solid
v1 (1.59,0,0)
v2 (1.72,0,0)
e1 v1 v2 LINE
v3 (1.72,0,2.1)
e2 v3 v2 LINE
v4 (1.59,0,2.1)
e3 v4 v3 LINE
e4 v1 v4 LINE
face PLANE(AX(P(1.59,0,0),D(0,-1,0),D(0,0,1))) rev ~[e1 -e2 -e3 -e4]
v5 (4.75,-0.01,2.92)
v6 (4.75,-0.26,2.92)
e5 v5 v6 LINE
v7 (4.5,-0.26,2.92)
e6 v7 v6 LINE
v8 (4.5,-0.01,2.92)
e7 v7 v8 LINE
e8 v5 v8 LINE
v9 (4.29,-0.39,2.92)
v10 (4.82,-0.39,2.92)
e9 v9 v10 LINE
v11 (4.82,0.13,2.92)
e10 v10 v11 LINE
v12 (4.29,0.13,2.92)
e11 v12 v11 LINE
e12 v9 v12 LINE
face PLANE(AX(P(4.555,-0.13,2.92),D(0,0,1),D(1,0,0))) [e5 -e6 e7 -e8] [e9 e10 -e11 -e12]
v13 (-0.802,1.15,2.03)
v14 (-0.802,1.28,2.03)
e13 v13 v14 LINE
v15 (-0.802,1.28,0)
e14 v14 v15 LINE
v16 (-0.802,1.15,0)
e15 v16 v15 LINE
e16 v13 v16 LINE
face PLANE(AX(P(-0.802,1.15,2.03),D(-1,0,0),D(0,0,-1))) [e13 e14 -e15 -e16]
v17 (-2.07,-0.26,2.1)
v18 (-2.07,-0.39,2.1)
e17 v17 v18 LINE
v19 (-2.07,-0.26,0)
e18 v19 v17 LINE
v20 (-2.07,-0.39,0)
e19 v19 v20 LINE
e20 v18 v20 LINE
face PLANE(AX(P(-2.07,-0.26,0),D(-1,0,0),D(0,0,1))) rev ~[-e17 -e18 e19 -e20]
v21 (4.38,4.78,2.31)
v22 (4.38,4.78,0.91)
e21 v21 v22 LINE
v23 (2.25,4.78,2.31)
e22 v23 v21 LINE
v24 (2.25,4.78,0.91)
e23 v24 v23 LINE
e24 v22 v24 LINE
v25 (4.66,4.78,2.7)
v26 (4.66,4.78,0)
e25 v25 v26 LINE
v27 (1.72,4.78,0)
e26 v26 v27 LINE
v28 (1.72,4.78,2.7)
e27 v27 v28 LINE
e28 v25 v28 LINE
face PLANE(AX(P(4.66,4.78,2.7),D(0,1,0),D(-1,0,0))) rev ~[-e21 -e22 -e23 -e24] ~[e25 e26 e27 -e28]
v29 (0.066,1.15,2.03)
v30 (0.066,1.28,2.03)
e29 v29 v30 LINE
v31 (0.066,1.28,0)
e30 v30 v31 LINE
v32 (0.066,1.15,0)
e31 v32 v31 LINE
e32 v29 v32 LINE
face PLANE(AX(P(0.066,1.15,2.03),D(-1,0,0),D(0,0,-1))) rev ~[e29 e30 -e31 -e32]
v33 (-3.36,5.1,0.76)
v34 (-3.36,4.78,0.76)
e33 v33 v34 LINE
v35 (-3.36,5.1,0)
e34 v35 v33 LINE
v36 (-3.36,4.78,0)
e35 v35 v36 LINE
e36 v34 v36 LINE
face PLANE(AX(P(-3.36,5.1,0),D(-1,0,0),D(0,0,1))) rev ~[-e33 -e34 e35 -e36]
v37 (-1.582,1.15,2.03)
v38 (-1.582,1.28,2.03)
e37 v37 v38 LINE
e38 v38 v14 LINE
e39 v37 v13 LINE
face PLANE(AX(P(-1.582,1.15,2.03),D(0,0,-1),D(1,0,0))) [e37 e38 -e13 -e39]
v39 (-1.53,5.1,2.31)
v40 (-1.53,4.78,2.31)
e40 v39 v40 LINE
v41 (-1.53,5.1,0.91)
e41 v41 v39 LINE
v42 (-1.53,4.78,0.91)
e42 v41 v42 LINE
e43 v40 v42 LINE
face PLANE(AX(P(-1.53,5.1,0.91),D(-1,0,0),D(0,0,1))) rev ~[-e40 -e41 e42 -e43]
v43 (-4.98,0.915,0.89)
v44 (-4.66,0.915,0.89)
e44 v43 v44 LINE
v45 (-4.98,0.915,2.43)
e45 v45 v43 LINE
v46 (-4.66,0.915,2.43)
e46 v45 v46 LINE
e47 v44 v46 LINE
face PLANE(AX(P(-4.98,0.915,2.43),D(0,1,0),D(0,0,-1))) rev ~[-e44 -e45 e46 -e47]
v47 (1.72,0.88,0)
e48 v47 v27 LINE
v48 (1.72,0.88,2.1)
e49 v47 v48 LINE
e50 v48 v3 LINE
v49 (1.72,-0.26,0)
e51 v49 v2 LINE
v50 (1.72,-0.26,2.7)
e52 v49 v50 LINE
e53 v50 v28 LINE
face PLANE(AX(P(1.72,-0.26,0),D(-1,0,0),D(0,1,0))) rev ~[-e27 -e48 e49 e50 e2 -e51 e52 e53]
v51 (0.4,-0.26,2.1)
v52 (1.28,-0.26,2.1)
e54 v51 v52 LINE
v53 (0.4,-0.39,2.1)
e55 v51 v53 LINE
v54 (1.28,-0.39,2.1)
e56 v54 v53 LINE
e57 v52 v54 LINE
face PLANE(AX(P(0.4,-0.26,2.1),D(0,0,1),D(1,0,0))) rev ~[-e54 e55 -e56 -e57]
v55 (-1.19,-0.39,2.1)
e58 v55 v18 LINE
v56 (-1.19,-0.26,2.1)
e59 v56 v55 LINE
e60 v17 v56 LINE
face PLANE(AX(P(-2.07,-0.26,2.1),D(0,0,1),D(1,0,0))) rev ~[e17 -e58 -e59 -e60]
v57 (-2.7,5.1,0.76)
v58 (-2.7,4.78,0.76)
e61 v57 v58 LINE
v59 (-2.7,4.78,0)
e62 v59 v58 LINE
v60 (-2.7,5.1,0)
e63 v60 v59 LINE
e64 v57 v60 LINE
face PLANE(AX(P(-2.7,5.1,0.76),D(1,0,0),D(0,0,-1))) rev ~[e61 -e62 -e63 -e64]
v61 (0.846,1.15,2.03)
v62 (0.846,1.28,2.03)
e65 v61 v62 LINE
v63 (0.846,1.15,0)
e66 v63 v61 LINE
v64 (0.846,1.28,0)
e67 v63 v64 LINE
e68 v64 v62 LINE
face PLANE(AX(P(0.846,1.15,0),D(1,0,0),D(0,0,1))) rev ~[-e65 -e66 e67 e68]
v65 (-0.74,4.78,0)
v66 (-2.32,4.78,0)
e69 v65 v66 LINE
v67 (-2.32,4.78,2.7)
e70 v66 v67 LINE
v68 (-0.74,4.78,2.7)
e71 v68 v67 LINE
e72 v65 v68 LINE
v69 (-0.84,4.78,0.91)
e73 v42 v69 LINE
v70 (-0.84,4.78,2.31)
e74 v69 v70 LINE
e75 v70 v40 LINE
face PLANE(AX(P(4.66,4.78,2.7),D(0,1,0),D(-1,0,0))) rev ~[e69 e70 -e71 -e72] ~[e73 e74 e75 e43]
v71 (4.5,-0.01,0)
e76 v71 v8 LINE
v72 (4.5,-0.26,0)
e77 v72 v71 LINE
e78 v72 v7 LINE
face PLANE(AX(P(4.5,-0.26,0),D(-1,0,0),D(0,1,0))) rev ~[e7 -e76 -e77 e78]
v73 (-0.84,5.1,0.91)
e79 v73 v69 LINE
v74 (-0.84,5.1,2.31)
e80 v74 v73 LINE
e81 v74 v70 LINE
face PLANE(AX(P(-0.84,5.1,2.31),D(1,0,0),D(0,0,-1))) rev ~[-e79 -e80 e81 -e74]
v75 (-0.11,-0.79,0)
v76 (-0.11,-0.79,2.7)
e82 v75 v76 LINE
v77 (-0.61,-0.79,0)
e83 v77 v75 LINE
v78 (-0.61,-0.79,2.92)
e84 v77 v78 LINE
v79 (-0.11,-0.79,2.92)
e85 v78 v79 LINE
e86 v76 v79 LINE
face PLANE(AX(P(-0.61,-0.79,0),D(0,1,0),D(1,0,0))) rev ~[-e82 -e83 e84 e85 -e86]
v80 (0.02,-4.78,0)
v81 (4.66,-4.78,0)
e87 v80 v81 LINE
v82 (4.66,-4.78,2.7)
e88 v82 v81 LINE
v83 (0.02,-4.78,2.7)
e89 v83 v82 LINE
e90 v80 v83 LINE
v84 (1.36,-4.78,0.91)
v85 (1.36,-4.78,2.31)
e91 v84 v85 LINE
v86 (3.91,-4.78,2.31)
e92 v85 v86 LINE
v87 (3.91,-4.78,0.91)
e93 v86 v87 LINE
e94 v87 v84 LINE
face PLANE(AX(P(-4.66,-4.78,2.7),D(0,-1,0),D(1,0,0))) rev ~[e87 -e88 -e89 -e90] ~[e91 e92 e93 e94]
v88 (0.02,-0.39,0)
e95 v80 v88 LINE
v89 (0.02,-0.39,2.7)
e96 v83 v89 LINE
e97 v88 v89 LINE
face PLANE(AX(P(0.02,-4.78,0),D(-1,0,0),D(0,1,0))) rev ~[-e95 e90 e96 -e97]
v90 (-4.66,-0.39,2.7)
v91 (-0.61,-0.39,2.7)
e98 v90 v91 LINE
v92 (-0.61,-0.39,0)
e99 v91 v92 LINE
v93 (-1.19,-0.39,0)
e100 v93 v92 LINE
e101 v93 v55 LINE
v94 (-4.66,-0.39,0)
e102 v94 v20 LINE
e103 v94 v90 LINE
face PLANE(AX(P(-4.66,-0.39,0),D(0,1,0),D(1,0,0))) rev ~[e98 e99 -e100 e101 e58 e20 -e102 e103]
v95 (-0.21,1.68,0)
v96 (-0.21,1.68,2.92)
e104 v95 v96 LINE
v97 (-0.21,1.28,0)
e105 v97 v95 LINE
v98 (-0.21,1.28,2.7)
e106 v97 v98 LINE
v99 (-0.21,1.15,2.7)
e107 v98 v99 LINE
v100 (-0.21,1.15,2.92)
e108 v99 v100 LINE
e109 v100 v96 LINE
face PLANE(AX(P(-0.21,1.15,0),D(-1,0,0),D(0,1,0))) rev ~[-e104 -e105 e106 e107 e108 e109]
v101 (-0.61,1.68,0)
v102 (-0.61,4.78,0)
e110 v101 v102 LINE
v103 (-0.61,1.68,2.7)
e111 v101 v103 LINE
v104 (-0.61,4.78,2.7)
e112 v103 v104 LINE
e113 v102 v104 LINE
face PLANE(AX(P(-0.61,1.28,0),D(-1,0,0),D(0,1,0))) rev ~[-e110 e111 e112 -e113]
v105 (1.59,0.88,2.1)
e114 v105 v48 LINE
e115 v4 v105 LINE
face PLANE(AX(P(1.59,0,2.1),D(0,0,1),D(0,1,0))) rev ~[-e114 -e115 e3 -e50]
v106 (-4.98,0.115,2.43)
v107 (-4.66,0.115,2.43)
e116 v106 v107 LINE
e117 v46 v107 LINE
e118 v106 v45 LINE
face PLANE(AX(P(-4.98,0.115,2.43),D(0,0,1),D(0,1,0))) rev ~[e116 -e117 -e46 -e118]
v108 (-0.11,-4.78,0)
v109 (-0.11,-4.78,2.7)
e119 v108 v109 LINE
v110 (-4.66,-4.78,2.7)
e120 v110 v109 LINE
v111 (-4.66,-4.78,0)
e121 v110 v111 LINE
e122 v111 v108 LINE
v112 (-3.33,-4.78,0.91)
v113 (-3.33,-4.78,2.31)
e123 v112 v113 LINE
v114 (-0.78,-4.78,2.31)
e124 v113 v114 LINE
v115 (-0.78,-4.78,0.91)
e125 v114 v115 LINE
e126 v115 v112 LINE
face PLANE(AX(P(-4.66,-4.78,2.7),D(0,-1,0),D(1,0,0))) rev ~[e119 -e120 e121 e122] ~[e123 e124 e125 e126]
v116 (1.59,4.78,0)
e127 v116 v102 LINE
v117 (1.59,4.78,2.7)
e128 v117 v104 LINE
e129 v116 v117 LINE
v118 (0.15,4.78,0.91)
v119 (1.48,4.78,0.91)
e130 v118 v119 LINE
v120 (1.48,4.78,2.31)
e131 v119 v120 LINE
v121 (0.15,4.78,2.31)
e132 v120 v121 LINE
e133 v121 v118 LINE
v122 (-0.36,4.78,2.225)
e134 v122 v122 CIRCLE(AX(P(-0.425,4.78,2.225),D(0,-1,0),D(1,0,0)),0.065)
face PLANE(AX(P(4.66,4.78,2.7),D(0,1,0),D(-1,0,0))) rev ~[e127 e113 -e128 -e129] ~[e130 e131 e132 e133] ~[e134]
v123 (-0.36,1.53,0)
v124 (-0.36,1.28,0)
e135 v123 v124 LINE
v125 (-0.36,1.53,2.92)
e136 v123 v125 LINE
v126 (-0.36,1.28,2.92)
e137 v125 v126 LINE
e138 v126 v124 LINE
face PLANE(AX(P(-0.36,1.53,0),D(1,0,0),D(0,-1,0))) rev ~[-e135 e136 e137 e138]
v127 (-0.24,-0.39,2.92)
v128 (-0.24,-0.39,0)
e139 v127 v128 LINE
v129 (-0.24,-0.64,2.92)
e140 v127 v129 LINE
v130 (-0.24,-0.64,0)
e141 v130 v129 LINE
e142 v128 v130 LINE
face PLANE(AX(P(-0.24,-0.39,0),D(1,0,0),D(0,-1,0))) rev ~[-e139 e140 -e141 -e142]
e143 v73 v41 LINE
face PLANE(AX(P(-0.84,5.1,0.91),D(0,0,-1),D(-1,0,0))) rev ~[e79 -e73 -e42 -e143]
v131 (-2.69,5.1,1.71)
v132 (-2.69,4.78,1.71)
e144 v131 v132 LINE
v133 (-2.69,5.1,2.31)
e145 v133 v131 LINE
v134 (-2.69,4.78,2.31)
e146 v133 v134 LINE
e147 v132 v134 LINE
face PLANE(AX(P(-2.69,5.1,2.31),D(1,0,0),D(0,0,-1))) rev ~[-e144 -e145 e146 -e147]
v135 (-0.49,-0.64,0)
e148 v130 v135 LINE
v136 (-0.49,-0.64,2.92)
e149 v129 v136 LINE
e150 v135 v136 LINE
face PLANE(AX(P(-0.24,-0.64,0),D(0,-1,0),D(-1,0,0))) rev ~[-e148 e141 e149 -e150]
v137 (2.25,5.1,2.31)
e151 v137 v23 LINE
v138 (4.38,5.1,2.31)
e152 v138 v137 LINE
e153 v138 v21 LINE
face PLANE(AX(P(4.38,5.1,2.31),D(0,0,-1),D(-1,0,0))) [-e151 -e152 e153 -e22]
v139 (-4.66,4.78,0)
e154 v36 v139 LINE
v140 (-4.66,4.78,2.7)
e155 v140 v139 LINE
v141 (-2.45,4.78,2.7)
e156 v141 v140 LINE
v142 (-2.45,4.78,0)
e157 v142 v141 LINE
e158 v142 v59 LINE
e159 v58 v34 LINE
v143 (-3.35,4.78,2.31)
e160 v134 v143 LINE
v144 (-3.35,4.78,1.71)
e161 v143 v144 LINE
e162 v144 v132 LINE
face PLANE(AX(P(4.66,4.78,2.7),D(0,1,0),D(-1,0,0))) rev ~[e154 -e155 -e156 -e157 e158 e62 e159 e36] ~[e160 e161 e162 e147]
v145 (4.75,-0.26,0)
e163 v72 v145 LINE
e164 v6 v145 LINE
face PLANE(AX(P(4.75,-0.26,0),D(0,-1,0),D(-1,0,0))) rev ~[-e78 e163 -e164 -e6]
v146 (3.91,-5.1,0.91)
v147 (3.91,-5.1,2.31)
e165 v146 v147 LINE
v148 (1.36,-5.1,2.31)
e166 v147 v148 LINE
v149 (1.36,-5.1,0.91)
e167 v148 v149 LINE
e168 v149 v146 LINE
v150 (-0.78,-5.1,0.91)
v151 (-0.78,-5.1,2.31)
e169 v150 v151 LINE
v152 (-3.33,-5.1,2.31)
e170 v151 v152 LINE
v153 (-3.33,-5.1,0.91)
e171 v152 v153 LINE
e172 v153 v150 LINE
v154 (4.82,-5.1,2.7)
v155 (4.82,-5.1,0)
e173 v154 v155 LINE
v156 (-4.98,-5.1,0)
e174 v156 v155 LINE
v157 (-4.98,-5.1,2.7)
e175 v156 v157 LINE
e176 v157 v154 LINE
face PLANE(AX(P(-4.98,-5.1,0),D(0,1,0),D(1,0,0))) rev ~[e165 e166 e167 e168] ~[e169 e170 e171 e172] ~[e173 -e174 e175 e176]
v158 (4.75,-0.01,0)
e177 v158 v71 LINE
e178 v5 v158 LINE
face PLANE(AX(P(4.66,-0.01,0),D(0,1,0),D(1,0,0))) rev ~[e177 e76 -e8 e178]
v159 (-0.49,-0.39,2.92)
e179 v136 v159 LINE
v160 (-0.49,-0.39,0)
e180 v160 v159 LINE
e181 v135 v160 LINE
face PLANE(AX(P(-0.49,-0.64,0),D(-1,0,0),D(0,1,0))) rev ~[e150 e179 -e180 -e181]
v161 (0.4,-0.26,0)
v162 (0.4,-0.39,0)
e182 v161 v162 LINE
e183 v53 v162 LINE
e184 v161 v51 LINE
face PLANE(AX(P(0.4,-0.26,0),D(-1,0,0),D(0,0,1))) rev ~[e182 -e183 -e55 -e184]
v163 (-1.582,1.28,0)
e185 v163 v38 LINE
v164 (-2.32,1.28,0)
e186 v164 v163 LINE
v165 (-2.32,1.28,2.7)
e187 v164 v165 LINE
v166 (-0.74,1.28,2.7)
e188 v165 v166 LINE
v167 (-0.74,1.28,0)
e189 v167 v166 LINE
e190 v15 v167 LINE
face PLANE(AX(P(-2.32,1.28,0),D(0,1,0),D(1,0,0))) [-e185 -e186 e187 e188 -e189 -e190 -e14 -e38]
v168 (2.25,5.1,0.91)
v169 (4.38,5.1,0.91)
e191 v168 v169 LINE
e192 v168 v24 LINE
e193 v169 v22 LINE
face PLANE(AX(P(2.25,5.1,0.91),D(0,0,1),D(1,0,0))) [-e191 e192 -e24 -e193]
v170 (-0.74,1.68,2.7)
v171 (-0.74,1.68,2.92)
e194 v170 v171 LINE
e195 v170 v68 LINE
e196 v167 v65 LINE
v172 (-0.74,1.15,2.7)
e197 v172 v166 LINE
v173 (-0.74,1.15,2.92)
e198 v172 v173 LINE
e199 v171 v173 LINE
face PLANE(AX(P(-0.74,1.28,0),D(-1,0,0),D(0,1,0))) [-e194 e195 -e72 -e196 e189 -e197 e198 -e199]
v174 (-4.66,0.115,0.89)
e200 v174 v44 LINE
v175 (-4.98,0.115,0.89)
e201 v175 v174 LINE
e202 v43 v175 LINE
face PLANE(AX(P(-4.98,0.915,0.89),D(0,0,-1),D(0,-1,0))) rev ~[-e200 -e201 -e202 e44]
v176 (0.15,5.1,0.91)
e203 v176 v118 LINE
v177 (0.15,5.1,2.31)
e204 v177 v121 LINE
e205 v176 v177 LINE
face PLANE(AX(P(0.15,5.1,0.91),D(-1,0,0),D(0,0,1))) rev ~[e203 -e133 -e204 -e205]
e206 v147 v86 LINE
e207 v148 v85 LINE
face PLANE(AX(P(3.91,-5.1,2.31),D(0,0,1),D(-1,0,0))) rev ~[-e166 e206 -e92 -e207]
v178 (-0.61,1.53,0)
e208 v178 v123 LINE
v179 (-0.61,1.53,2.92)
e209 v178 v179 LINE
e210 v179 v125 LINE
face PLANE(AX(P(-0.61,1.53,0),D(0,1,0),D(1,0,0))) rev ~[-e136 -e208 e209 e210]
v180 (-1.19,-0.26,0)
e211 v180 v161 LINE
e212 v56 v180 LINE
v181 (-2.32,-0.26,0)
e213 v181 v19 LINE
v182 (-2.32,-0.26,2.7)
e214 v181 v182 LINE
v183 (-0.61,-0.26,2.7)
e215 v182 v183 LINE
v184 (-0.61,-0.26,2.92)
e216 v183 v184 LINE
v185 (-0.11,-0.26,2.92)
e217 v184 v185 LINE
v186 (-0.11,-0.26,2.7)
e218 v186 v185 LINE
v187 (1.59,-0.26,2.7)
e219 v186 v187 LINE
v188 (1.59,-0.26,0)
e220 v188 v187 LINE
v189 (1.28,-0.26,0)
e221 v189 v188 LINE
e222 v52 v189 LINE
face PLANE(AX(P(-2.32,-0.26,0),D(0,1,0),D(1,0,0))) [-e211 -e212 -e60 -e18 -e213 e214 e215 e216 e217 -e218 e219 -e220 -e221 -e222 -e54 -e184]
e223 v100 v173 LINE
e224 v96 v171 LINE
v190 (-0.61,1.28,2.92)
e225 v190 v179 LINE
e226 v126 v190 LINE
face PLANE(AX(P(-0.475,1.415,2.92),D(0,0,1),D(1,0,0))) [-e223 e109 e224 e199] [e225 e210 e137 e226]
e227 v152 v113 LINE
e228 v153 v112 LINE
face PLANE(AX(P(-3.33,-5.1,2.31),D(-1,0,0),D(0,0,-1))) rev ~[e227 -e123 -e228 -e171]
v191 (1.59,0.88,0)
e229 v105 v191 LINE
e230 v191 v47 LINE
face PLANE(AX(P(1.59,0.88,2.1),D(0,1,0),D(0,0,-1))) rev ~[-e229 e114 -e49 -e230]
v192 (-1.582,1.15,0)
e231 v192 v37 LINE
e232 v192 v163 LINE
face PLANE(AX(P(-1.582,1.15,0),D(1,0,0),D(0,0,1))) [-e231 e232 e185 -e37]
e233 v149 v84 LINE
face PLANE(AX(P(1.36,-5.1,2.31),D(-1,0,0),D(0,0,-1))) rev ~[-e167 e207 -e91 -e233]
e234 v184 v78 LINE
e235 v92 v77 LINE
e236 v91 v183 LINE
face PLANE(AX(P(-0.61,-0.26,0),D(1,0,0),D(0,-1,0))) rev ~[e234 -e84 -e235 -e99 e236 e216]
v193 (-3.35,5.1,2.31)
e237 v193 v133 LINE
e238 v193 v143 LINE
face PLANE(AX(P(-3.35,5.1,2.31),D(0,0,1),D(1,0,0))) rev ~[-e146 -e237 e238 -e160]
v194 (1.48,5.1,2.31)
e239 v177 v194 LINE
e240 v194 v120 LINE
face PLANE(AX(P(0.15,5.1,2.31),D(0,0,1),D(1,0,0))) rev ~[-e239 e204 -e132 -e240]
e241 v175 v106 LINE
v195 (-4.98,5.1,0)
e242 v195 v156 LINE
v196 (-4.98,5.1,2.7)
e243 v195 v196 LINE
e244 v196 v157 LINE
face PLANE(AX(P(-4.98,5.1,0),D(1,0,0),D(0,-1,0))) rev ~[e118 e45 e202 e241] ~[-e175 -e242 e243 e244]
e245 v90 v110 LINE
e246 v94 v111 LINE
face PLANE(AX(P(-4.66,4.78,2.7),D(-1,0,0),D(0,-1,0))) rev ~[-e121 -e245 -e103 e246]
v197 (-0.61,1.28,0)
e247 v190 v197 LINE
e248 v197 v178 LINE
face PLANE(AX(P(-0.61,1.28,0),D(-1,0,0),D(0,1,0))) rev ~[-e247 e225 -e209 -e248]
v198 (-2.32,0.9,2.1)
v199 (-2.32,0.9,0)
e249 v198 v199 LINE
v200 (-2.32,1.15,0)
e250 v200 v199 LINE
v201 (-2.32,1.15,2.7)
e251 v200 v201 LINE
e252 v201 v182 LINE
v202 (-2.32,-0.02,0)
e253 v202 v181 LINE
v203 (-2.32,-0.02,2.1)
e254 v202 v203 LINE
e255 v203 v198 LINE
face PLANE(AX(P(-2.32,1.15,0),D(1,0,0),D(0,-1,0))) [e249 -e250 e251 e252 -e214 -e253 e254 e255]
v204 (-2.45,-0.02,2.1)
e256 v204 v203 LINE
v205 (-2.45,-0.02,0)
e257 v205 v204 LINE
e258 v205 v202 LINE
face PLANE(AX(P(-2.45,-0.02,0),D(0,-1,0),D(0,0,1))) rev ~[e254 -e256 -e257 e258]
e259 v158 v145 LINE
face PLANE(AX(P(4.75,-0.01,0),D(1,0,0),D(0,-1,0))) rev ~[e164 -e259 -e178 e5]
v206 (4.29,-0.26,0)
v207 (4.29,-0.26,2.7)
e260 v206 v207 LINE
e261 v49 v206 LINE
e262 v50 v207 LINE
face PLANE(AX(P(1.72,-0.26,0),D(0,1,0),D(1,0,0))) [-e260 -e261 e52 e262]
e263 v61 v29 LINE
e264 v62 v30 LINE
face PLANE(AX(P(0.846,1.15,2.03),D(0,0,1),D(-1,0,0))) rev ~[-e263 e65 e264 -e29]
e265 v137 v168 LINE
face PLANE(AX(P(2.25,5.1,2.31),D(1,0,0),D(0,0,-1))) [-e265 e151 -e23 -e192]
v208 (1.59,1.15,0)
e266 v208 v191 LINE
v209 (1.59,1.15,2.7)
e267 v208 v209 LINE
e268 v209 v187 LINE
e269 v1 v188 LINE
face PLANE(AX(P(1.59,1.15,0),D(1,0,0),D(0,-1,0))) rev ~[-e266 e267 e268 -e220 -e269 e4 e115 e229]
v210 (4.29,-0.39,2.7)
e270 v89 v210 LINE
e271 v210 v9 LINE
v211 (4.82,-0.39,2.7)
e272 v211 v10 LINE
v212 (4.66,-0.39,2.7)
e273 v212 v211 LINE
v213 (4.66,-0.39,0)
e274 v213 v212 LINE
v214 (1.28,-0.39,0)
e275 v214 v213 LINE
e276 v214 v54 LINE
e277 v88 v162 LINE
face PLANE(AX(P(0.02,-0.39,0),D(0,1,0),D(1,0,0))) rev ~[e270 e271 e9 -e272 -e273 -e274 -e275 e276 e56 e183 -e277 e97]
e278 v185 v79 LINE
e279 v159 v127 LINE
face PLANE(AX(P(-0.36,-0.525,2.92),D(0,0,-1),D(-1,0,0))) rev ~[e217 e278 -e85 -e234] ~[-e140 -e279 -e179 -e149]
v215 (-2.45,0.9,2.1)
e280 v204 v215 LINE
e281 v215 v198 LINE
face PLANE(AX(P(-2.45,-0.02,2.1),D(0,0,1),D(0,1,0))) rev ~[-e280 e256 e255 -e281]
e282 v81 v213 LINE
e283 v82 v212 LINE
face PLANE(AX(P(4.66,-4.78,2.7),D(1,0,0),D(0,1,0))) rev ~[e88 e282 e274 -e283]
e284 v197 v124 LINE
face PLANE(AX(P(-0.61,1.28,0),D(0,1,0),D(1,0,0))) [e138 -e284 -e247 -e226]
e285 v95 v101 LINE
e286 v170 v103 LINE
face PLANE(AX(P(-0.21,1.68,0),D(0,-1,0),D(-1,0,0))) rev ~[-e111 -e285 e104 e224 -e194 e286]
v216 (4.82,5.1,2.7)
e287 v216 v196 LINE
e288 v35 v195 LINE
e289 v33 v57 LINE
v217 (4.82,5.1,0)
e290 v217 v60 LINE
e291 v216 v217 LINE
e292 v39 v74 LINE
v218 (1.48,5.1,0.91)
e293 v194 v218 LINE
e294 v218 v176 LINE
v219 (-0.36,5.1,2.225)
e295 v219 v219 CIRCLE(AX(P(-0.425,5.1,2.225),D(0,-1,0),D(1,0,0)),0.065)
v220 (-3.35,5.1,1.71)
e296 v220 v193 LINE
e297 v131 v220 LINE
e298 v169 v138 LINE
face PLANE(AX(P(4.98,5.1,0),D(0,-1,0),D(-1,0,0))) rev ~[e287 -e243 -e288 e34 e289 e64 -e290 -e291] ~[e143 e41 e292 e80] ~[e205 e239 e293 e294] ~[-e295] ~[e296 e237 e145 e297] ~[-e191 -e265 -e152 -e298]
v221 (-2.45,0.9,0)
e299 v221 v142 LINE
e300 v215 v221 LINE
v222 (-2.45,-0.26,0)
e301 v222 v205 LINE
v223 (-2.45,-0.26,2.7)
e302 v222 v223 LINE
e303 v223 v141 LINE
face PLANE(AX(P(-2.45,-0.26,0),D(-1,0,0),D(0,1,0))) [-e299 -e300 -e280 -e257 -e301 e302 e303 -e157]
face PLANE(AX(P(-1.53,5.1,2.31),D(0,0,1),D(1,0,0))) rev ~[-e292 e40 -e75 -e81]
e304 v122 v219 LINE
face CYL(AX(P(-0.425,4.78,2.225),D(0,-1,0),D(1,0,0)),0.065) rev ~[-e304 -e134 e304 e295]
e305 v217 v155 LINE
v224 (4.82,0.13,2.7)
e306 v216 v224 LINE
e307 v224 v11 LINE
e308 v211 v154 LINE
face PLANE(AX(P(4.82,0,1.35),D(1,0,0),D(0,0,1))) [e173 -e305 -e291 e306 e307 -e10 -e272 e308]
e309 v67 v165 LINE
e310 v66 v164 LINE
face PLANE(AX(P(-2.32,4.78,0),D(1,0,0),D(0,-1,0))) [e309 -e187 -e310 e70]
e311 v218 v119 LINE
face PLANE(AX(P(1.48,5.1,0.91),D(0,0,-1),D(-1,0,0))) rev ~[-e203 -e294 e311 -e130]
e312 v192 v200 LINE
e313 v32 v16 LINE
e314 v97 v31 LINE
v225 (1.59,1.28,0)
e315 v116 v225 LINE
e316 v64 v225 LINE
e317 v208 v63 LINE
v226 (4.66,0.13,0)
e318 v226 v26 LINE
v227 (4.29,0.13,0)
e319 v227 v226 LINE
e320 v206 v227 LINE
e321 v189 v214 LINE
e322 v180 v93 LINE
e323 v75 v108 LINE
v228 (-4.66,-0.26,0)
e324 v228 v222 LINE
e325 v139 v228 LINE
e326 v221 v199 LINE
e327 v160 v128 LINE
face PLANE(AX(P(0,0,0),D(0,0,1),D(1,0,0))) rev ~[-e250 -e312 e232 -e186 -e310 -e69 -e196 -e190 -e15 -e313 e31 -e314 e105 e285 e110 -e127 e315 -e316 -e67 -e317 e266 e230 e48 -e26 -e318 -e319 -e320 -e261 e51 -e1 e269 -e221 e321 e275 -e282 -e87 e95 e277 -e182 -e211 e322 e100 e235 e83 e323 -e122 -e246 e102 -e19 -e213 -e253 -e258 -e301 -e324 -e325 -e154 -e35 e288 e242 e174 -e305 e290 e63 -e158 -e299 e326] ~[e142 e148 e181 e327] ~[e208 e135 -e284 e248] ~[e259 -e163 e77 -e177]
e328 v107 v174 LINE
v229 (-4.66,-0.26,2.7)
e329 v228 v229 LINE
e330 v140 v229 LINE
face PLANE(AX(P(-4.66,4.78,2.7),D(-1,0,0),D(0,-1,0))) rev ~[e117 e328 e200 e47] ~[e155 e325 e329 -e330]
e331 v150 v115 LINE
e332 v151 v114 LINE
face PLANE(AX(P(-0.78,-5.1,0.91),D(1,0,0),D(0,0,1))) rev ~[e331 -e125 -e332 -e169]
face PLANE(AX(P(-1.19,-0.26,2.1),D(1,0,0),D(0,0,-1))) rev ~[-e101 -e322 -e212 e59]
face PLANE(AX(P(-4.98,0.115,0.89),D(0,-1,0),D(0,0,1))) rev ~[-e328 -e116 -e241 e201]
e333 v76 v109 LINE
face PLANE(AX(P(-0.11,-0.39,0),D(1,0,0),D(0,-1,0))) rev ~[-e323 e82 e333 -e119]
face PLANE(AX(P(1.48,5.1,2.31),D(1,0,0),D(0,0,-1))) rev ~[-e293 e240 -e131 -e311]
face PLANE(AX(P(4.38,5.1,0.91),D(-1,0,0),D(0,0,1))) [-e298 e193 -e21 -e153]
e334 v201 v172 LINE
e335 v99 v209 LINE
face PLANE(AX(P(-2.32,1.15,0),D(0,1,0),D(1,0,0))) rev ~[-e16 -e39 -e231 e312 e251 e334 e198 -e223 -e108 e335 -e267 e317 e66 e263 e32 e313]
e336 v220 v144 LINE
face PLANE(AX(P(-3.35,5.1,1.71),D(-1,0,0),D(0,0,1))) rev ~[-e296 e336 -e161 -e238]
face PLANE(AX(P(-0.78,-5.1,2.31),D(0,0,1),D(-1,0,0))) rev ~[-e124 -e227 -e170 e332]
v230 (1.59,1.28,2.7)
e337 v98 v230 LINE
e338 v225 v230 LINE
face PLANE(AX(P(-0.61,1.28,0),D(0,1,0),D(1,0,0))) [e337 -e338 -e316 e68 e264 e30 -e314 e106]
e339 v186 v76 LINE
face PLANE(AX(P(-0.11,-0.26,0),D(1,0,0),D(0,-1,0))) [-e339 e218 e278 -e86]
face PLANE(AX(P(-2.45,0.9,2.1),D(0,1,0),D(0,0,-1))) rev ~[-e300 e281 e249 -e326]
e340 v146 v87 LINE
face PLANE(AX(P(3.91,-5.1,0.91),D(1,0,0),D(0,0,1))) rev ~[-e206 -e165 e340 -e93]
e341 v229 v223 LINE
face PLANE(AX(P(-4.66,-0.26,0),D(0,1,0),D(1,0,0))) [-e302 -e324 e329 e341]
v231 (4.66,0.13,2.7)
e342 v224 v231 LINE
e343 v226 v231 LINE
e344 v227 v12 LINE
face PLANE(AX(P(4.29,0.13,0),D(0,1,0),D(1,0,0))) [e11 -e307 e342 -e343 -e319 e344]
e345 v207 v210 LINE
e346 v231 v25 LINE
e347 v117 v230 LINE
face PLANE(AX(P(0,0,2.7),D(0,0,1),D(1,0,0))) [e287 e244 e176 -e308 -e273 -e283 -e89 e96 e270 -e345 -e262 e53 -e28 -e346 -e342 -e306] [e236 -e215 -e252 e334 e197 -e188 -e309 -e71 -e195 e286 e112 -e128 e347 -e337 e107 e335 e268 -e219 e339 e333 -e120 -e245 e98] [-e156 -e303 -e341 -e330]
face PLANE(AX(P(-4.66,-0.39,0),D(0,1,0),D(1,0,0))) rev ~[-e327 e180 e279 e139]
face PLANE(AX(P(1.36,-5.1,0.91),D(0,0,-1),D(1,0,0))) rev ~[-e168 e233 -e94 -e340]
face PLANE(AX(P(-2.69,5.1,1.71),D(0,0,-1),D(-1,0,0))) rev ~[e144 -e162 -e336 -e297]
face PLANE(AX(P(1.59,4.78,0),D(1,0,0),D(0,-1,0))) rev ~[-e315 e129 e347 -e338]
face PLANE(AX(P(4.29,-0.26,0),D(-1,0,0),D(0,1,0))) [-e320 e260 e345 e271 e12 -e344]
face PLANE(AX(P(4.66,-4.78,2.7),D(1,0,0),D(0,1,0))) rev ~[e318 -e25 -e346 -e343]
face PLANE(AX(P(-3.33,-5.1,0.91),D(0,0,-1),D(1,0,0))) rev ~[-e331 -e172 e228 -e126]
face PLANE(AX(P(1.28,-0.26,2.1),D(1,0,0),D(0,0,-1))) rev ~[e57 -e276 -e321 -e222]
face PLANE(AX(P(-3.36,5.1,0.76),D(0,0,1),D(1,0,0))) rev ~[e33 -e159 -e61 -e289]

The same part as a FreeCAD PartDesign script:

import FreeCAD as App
import Part
import Sketcher
from FreeCAD import Vector


def add_polygon(sketch, points):
    """Adds a closed chain of lines whose ends are joined by coincident constraints."""
    first, n = sketch.GeometryCount, len(points)
    for a, b in zip(points, points[1:] + points[:1]):
        sketch.addGeometry(Part.LineSegment(App.Vector(*a, 0), App.Vector(*b, 0)), False)
    for i in range(n):
        sketch.addConstraint(Sketcher.Constraint("Coincident", first + i, 2, first + (i + 1) % n, 1))

doc = App.newDocument("Part")
body = doc.addObject("PartDesign::Body", "Body")

# Sketch on XY plane
sketch1 = body.newObject("Sketcher::SketchObject", "Sketch")
sketch1.AttachmentSupport = (doc.getObject("XY_Plane"), [""])
sketch1.MapMode = "FlatFace"
add_polygon(sketch1, [(-5, 5), (-5, -5), (5, -5), (5, 5)])  # lines 0-3
sketch1.addConstraint(Sketcher.Constraint("Vertical", 0))
sketch1.addConstraint(Sketcher.Constraint("Horizontal", 1))
sketch1.addConstraint(Sketcher.Constraint("Vertical", 2))
sketch1.addConstraint(Sketcher.Constraint("Horizontal", 3))
sketch1.addConstraint(Sketcher.Constraint("Symmetric", 0, 2, 2, 2, -1, 1))
sketch1.addConstraint(Sketcher.Constraint("DistanceX", 0, 2, -1, 1, 4.98))
sketch1.addConstraint(Sketcher.Constraint("DistanceY", 0, 2, 0, 1, 10.2))
pad1 = body.newObject("PartDesign::Pad", "Pad")
pad1.Profile = sketch1
pad1.Length = 2.7

# Sketch on XY plane
sketch2 = body.newObject("Sketcher::SketchObject", "Sketch001")
sketch2.AttachmentSupport = (doc.getObject("XY_Plane"), [""])
sketch2.MapMode = "FlatFace"
sketch2.AttachmentOffset = App.Placement(Vector(0, 0, 2.7), App.Rotation())
add_polygon(sketch2, [(5, 5), (-5, 5), (-5, -5), (5, -5)])  # lines 0-3
sketch2.addConstraint(Sketcher.Constraint("Horizontal", 0))
sketch2.addConstraint(Sketcher.Constraint("Vertical", 1))
sketch2.addConstraint(Sketcher.Constraint("Horizontal", 2))
sketch2.addConstraint(Sketcher.Constraint("Vertical", 3))
sketch2.addConstraint(Sketcher.Constraint("Symmetric", 0, 2, 2, 2, -1, 1))
sketch2.addConstraint(Sketcher.Constraint("DistanceX", 0, 2, 0, 1, 9.32))
sketch2.addConstraint(Sketcher.Constraint("DistanceY", 1, 2, 1, 1, 9.56))
pocket1 = body.newObject("PartDesign::Pocket", "Pocket")
pocket1.Profile = sketch2
pocket1.Type = "ThroughAll"

# Sketch on YZ plane
sketch3 = body.newObject("Sketcher::SketchObject", "Sketch002")
sketch3.AttachmentSupport = (doc.getObject("YZ_Plane"), [""])
sketch3.MapMode = "FlatFace"
sketch3.AttachmentOffset = App.Placement(Vector(0, 0, 4.98), App.Rotation())
add_polygon(sketch3, [(5.1, 2.7), (-5.1, 2.7), (-5.1, 0), (5.1, 0)])  # lines 0-3
sketch3.addConstraint(Sketcher.Constraint("Horizontal", 0))
sketch3.addConstraint(Sketcher.Constraint("Vertical", 1))
sketch3.addConstraint(Sketcher.Constraint("Horizontal", 2))
sketch3.addConstraint(Sketcher.Constraint("Vertical", 3))
sketch3.addConstraint(Sketcher.Constraint("Symmetric", 1, 2, 2, 2, -1, 1))
sketch3.addConstraint(Sketcher.Constraint("DistanceX", 0, 2, 0, 1, 10.2))
sketch3.addConstraint(Sketcher.Constraint("DistanceY", 1, 2, 1, 1, 2.7))
pocket2 = body.newObject("PartDesign::Pocket", "Pocket001")
pocket2.Profile = sketch3
pocket2.Length = 0.16

# Sketch on XY plane
sketch4 = body.newObject("Sketcher::SketchObject", "Sketch003")
sketch4.AttachmentSupport = (doc.getObject("XY_Plane"), [""])
sketch4.MapMode = "FlatFace"
add_polygon(sketch4, [(-2.45, -0.26), (-4.66, -0.26), (-4.66, -0.39), (-0.11, -0.39), (-0.11, -4.78), (0.02, -4.78), (0.02, -0.39), (4.66, -0.39), (4.66, -0.26), (1.72, -0.26), (1.72, 4.78), (1.59, 4.78), (1.59, 1.28), (-0.61, 1.28), (-0.61, 4.78), (-0.74, 4.78), (-0.74, 1.28), (-2.32, 1.28), (-2.32, 4.78), (-2.45, 4.78)])  # lines 0-19
add_polygon(sketch4, [(1.59, -0.26), (-2.32, -0.26), (-2.32, 1.15), (1.59, 1.15)])  # lines 20-23
sketch4.addConstraint(Sketcher.Constraint("Horizontal", 0))
sketch4.addConstraint(Sketcher.Constraint("Vertical", 1))
sketch4.addConstraint(Sketcher.Constraint("Horizontal", 2))
sketch4.addConstraint(Sketcher.Constraint("Vertical", 3))
sketch4.addConstraint(Sketcher.Constraint("Horizontal", 4))
sketch4.addConstraint(Sketcher.Constraint("Vertical", 5))
sketch4.addConstraint(Sketcher.Constraint("Horizontal", 6))
sketch4.addConstraint(Sketcher.Constraint("Vertical", 7))
sketch4.addConstraint(Sketcher.Constraint("Horizontal", 8))
sketch4.addConstraint(Sketcher.Constraint("Vertical", 9))
sketch4.addConstraint(Sketcher.Constraint("Horizontal", 10))
sketch4.addConstraint(Sketcher.Constraint("Vertical", 11))
sketch4.addConstraint(Sketcher.Constraint("Horizontal", 12))
sketch4.addConstraint(Sketcher.Constraint("Vertical", 13))
sketch4.addConstraint(Sketcher.Constraint("Horizontal", 14))
sketch4.addConstraint(Sketcher.Constraint("Vertical", 15))
sketch4.addConstraint(Sketcher.Constraint("Horizontal", 16))
sketch4.addConstraint(Sketcher.Constraint("Vertical", 17))
sketch4.addConstraint(Sketcher.Constraint("Horizontal", 18))
sketch4.addConstraint(Sketcher.Constraint("Vertical", 19))
sketch4.addConstraint(Sketcher.Constraint("Horizontal", 20))
sketch4.addConstraint(Sketcher.Constraint("Vertical", 21))
sketch4.addConstraint(Sketcher.Constraint("Horizontal", 22))
sketch4.addConstraint(Sketcher.Constraint("Vertical", 23))
sketch4.addConstraint(Sketcher.Constraint("Symmetric", 1, 2, 6, 2, -2))
sketch4.addConstraint(Sketcher.Constraint("Horizontal", 0, 2, 7, 2))
sketch4.addConstraint(Sketcher.Constraint("Horizontal", 10, 2, 13, 2))
sketch4.addConstraint(Sketcher.Constraint("Horizontal", 12, 2, 15, 2))
sketch4.addConstraint(Sketcher.Constraint("Horizontal", 14, 2, 17, 2))
sketch4.addConstraint(Sketcher.Constraint("Horizontal", 19, 2, 20, 2))
sketch4.addConstraint(Sketcher.Constraint("Vertical", 17, 2, 20, 2))
sketch4.addConstraint(Sketcher.Constraint("Vertical", 11, 2, 22, 2))
sketch4.addConstraint(Sketcher.Constraint("Equal", 4, 10))
sketch4.addConstraint(Sketcher.Constraint("Equal", 10, 14))
sketch4.addConstraint(Sketcher.Constraint("Equal", 14, 18))
sketch4.addConstraint(Sketcher.Constraint("Equal", 18, 1))
sketch4.addConstraint(Sketcher.Constraint("DistanceX", 0, 2, -1, 1, 4.66))
sketch4.addConstraint(Sketcher.Constraint("DistanceX", 12, 2, 12, 1, 2.2))
sketch4.addConstraint(Sketcher.Constraint("DistanceY", 11, 2, 11, 1, 3.5))
sketch4.addConstraint(Sketcher.Constraint("DistanceX", 0, 2, 0, 1, 2.21))
sketch4.addConstraint(Sketcher.Constraint("DistanceX", 2, 1, 2, 2, 4.55))
sketch4.addConstraint(Sketcher.Constraint("DistanceX", 4, 1, 4, 2, 0.13))
sketch4.addConstraint(Sketcher.Constraint("DistanceX", 8, 2, 8, 1, 2.94))
sketch4.addConstraint(Sketcher.Constraint("DistanceY", 3, 2, 3, 1, 4.39))
sketch4.addConstraint(Sketcher.Constraint("DistanceY", 9, 1, 9, 2, 5.04))
sketch4.addConstraint(Sketcher.Constraint("DistanceY", 21, 1, 21, 2, 1.41))
sketch4.addConstraint(Sketcher.Constraint("DistanceY", 0, 2, -1, 1, 0.26))
pad2 = body.newObject("PartDesign::Pad", "Pad001")
pad2.Profile = sketch4
pad2.Length = 2.7

# Sketch on XY plane
sketch5 = body.newObject("Sketcher::SketchObject", "Sketch004")
sketch5.AttachmentSupport = (doc.getObject("XY_Plane"), [""])
sketch5.MapMode = "FlatFace"
add_polygon(sketch5, [(-0.11, -0.26), (-0.61, -0.26), (-0.61, -0.79), (-0.11, -0.79)])  # lines 0-3
add_polygon(sketch5, [(-0.49, -0.64), (-0.49, -0.39), (-0.24, -0.39), (-0.24, -0.64)])  # lines 4-7
add_polygon(sketch5, [(-0.74, 1.15), (-0.21, 1.15), (-0.21, 1.68), (-0.74, 1.68)])  # lines 8-11
add_polygon(sketch5, [(-0.36, 1.53), (-0.36, 1.28), (-0.61, 1.28), (-0.61, 1.53)])  # lines 12-15
add_polygon(sketch5, [(4.29, -0.26), (4.5, -0.26), (4.5, -0.01), (4.66, -0.01), (4.66, 0.13), (4.29, 0.13)])  # lines 16-21
sketch5.addConstraint(Sketcher.Constraint("Horizontal", 0))
sketch5.addConstraint(Sketcher.Constraint("Vertical", 1))
sketch5.addConstraint(Sketcher.Constraint("Horizontal", 2))
sketch5.addConstraint(Sketcher.Constraint("Vertical", 3))
sketch5.addConstraint(Sketcher.Constraint("Vertical", 4))
sketch5.addConstraint(Sketcher.Constraint("Horizontal", 5))
sketch5.addConstraint(Sketcher.Constraint("Vertical", 6))
sketch5.addConstraint(Sketcher.Constraint("Horizontal", 7))
sketch5.addConstraint(Sketcher.Constraint("Horizontal", 8))
sketch5.addConstraint(Sketcher.Constraint("Vertical", 9))
sketch5.addConstraint(Sketcher.Constraint("Horizontal", 10))
sketch5.addConstraint(Sketcher.Constraint("Vertical", 11))
sketch5.addConstraint(Sketcher.Constraint("Vertical", 12))
sketch5.addConstraint(Sketcher.Constraint("Horizontal", 13))
sketch5.addConstraint(Sketcher.Constraint("Vertical", 14))
sketch5.addConstraint(Sketcher.Constraint("Horizontal", 15))
sketch5.addConstraint(Sketcher.Constraint("Horizontal", 16))
sketch5.addConstraint(Sketcher.Constraint("Vertical", 17))
sketch5.addConstraint(Sketcher.Constraint("Horizontal", 18))
sketch5.addConstraint(Sketcher.Constraint("Vertical", 19))
sketch5.addConstraint(Sketcher.Constraint("Horizontal", 20))
sketch5.addConstraint(Sketcher.Constraint("Vertical", 21))
sketch5.addConstraint(Sketcher.Constraint("Horizontal", 3, 2, 16, 2))
sketch5.addConstraint(Sketcher.Constraint("Vertical", 1, 2, 13, 2))
sketch5.addConstraint(Sketcher.Constraint("Equal", 7, 13))
sketch5.addConstraint(Sketcher.Constraint("Equal", 10, 1))
sketch5.addConstraint(Sketcher.Constraint("Equal", 15, 4))
sketch5.addConstraint(Sketcher.Constraint("Equal", 3, 9))
sketch5.addConstraint(Sketcher.Constraint("Equal", 6, 12))
sketch5.addConstraint(Sketcher.Constraint("Equal", 14, 17))
sketch5.addConstraint(Sketcher.Constraint("DistanceX", -1, 1, 16, 2, 4.5))
sketch5.addConstraint(Sketcher.Constraint("DistanceX", 0, 2, -1, 1, 0.61))
sketch5.addConstraint(Sketcher.Constraint("DistanceX", 4, 2, -1, 1, 0.49))
sketch5.addConstraint(Sketcher.Constraint("DistanceX", 12, 2, -1, 1, 0.36))
sketch5.addConstraint(Sketcher.Constraint("DistanceX", -1, 1, 20, 2, 4.29))
sketch5.addConstraint(Sketcher.Constraint("DistanceX", 0, 2, 0, 1, 0.5))
sketch5.addConstraint(Sketcher.Constraint("DistanceX", 8, 1, 8, 2, 0.53))
sketch5.addConstraint(Sketcher.Constraint("DistanceX", 18, 1, 18, 2, 0.16))
sketch5.addConstraint(Sketcher.Constraint("DistanceY", 19, 1, 19, 2, 0.14))
sketch5.addConstraint(Sketcher.Constraint("DistanceY", 1, 2, 4, 2, 0.4))
sketch5.addConstraint(Sketcher.Constraint("DistanceX", 8, 2, 3, 2, 0.1))
sketch5.addConstraint(Sketcher.Constraint("DistanceY", 12, 2, 9, 2, 0.4))
sketch5.addConstraint(Sketcher.Constraint("DistanceY", 0, 2, -1, 1, 0.26))
sketch5.addConstraint(Sketcher.Constraint("DistanceY", -1, 1, 8, 2, 1.15))
pad3 = body.newObject("PartDesign::Pad", "Pad002")
pad3.Profile = sketch5
pad3.Length = 2.92

# Sketch on XY plane
sketch6 = body.newObject("Sketcher::SketchObject", "Sketch005")
sketch6.AttachmentSupport = (doc.getObject("XY_Plane"), [""])
sketch6.MapMode = "FlatFace"
sketch6.AttachmentOffset = App.Placement(Vector(0, 0, 2.7), App.Rotation())
add_polygon(sketch6, [(4.29, 0.13), (4.29, -0.39), (4.82, -0.39), (4.82, 0.13)])  # lines 0-3
add_polygon(sketch6, [(4.75, -0.26), (4.5, -0.26), (4.5, -0.01), (4.75, -0.01)])  # lines 4-7
sketch6.addConstraint(Sketcher.Constraint("Vertical", 0))
sketch6.addConstraint(Sketcher.Constraint("Horizontal", 1))
sketch6.addConstraint(Sketcher.Constraint("Vertical", 2))
sketch6.addConstraint(Sketcher.Constraint("Horizontal", 3))
sketch6.addConstraint(Sketcher.Constraint("Horizontal", 4))
sketch6.addConstraint(Sketcher.Constraint("Vertical", 5))
sketch6.addConstraint(Sketcher.Constraint("Horizontal", 6))
sketch6.addConstraint(Sketcher.Constraint("Vertical", 7))
sketch6.addConstraint(Sketcher.Constraint("Equal", 6, 5))
sketch6.addConstraint(Sketcher.Constraint("DistanceX", 1, 1, 1, 2, 0.53))
sketch6.addConstraint(Sketcher.Constraint("DistanceX", 4, 2, 4, 1, 0.25))
sketch6.addConstraint(Sketcher.Constraint("DistanceY", 0, 2, 0, 1, 0.52))
sketch6.addConstraint(Sketcher.Constraint("DistanceX", -1, 1, 4, 2, 4.5))
sketch6.addConstraint(Sketcher.Constraint("DistanceX", -1, 1, 0, 2, 4.29))
sketch6.addConstraint(Sketcher.Constraint("DistanceY", 0, 2, -1, 1, 0.39))
sketch6.addConstraint(Sketcher.Constraint("DistanceY", 4, 2, -1, 1, 0.26))
pad4 = body.newObject("PartDesign::Pad", "Pad003")
pad4.Profile = sketch6
pad4.Length = 0.22

# Sketch on XY plane
sketch7 = body.newObject("Sketcher::SketchObject", "Sketch006")
sketch7.AttachmentSupport = (doc.getObject("XY_Plane"), [""])
sketch7.MapMode = "FlatFace"
add_polygon(sketch7, [(4.66, -0.01), (4.66, -0.26), (4.75, -0.26), (4.75, -0.01)])  # lines 0-3
sketch7.addConstraint(Sketcher.Constraint("Vertical", 0))
sketch7.addConstraint(Sketcher.Constraint("Horizontal", 1))
sketch7.addConstraint(Sketcher.Constraint("Vertical", 2))
sketch7.addConstraint(Sketcher.Constraint("Horizontal", 3))
sketch7.addConstraint(Sketcher.Constraint("DistanceX", 1, 1, 1, 2, 0.09))
sketch7.addConstraint(Sketcher.Constraint("DistanceY", 0, 2, 0, 1, 0.25))
sketch7.addConstraint(Sketcher.Constraint("DistanceX", -1, 1, 0, 2, 4.66))
sketch7.addConstraint(Sketcher.Constraint("DistanceY", 0, 2, -1, 1, 0.26))
pocket3 = body.newObject("PartDesign::Pocket", "Pocket002")
pocket3.Profile = sketch7
pocket3.Type = "ThroughAll"
pocket3.Reversed = True

# Sketch on XZ plane
sketch8 = body.newObject("Sketcher::SketchObject", "Sketch007")
sketch8.AttachmentSupport = (doc.getObject("XZ_Plane"), [""])
sketch8.MapMode = "FlatFace"
sketch8.AttachmentOffset = App.Placement(Vector(0, 0, 5.1), App.Rotation())
add_polygon(sketch8, [(1.4, 2.3), (1.4, 0.9), (3.9, 0.9), (3.9, 2.3)])  # lines 0-3
add_polygon(sketch8, [(-3.3, 2.3), (-3.3, 0.9), (-0.8, 0.9), (-0.8, 2.3)])  # lines 4-7
sketch8.addConstraint(Sketcher.Constraint("Vertical", 0))
sketch8.addConstraint(Sketcher.Constraint("Horizontal", 1))
sketch8.addConstraint(Sketcher.Constraint("Vertical", 2))
sketch8.addConstraint(Sketcher.Constraint("Horizontal", 3))
sketch8.addConstraint(Sketcher.Constraint("Vertical", 4))
sketch8.addConstraint(Sketcher.Constraint("Horizontal", 5))
sketch8.addConstraint(Sketcher.Constraint("Vertical", 6))
sketch8.addConstraint(Sketcher.Constraint("Horizontal", 7))
sketch8.addConstraint(Sketcher.Constraint("Horizontal", 1, 2, 4, 2))
sketch8.addConstraint(Sketcher.Constraint("Horizontal", 3, 2, 6, 2))
sketch8.addConstraint(Sketcher.Constraint("Equal", 3, 5))
sketch8.addConstraint(Sketcher.Constraint("DistanceY", 0, 2, 0, 1, 1.4))
sketch8.addConstraint(Sketcher.Constraint("DistanceX", 1, 1, 1, 2, 2.55))
sketch8.addConstraint(Sketcher.Constraint("DistanceX", -1, 1, 0, 2, 1.36))
sketch8.addConstraint(Sketcher.Constraint("DistanceY", -1, 1, 0, 2, 0.91))
sketch8.addConstraint(Sketcher.Constraint("DistanceX", 4, 2, -1, 1, 3.33))
pocket4 = body.newObject("PartDesign::Pocket", "Pocket003")
pocket4.Profile = sketch8
pocket4.Type = "UpToFirst"

# Sketch on XZ plane
sketch9 = body.newObject("Sketcher::SketchObject", "Sketch008")
sketch9.AttachmentSupport = (doc.getObject("XZ_Plane"), [""])
sketch9.MapMode = "FlatFace"
sketch9.AttachmentOffset = App.Placement(Vector(0, 0, -5.1), App.Rotation())
add_polygon(sketch9, [(1.5, 2.3), (1.5, 0.9), (0.1, 0.9), (0.1, 2.3)])  # lines 0-3
add_polygon(sketch9, [(-0.8, 2.3), (-0.8, 0.9), (-1.5, 0.9), (-1.5, 2.3)])  # lines 4-7
add_polygon(sketch9, [(-2.7, 2.3), (-2.7, 1.7), (-3.4, 1.7), (-3.4, 2.3)])  # lines 8-11
add_polygon(sketch9, [(4.4, 0.9), (2.2, 0.9), (2.2, 2.3), (4.4, 2.3)])  # lines 12-15
sketch9.addConstraint(Sketcher.Constraint("Vertical", 0))
sketch9.addConstraint(Sketcher.Constraint("Horizontal", 1))
sketch9.addConstraint(Sketcher.Constraint("Vertical", 2))
sketch9.addConstraint(Sketcher.Constraint("Horizontal", 3))
sketch9.addConstraint(Sketcher.Constraint("Vertical", 4))
sketch9.addConstraint(Sketcher.Constraint("Horizontal", 5))
sketch9.addConstraint(Sketcher.Constraint("Vertical", 6))
sketch9.addConstraint(Sketcher.Constraint("Horizontal", 7))
sketch9.addConstraint(Sketcher.Constraint("Vertical", 8))
sketch9.addConstraint(Sketcher.Constraint("Horizontal", 9))
sketch9.addConstraint(Sketcher.Constraint("Vertical", 10))
sketch9.addConstraint(Sketcher.Constraint("Horizontal", 11))
sketch9.addConstraint(Sketcher.Constraint("Horizontal", 12))
sketch9.addConstraint(Sketcher.Constraint("Vertical", 13))
sketch9.addConstraint(Sketcher.Constraint("Horizontal", 14))
sketch9.addConstraint(Sketcher.Constraint("Vertical", 15))
sketch9.addConstraint(Sketcher.Constraint("Horizontal", 1, 2, 4, 2))
sketch9.addConstraint(Sketcher.Constraint("Horizontal", 3, 2, 6, 2))
sketch9.addConstraint(Sketcher.Constraint("Horizontal", 7, 2, 10, 2))
sketch9.addConstraint(Sketcher.Constraint("Horizontal", 5, 2, 12, 2))
sketch9.addConstraint(Sketcher.Constraint("Horizontal", 11, 2, 13, 2))
sketch9.addConstraint(Sketcher.Constraint("DistanceY", 0, 2, 0, 1, 1.4))
sketch9.addConstraint(Sketcher.Constraint("DistanceY", 8, 2, 8, 1, 0.6))
sketch9.addConstraint(Sketcher.Constraint("DistanceX", 1, 2, 1, 1, 1.33))
sketch9.addConstraint(Sketcher.Constraint("DistanceX", 5, 2, 5, 1, 0.69))
sketch9.addConstraint(Sketcher.Constraint("DistanceX", 9, 2, 9, 1, 0.66))
sketch9.addConstraint(Sketcher.Constraint("DistanceX", 12, 2, 12, 1, 2.13))
sketch9.addConstraint(Sketcher.Constraint("DistanceX", 1, 2, 12, 2, 2.1))
sketch9.addConstraint(Sketcher.Constraint("DistanceX", -1, 1, 0, 2, 1.48))
sketch9.addConstraint(Sketcher.Constraint("DistanceY", -1, 1, 0, 2, 0.91))
sketch9.addConstraint(Sketcher.Constraint("DistanceX", 4, 2, -1, 1, 0.84))
sketch9.addConstraint(Sketcher.Constraint("DistanceX", 8, 2, -1, 1, 2.69))
pocket5 = body.newObject("PartDesign::Pocket", "Pocket004")
pocket5.Profile = sketch9
pocket5.Type = "UpToFirst"
pocket5.Reversed = True

# Sketch on YZ plane
sketch10 = body.newObject("Sketcher::SketchObject", "Sketch009")
sketch10.AttachmentSupport = (doc.getObject("YZ_Plane"), [""])
sketch10.MapMode = "FlatFace"
sketch10.AttachmentOffset = App.Placement(Vector(0, 0, -4.98), App.Rotation())
add_polygon(sketch10, [(0.9, 2.4), (0.9, 0.9), (0.1, 0.9), (0.1, 2.4)])  # lines 0-3
sketch10.addConstraint(Sketcher.Constraint("Vertical", 0))
sketch10.addConstraint(Sketcher.Constraint("Horizontal", 1))
sketch10.addConstraint(Sketcher.Constraint("Vertical", 2))
sketch10.addConstraint(Sketcher.Constraint("Horizontal", 3))
sketch10.addConstraint(Sketcher.Constraint("DistanceX", 1, 2, 1, 1, 0.8))
sketch10.addConstraint(Sketcher.Constraint("DistanceX", -1, 1, 0, 2, 0.915))
sketch10.addConstraint(Sketcher.Constraint("DistanceY", 0, 2, 0, 1, 1.54))
sketch10.addConstraint(Sketcher.Constraint("DistanceY", -1, 1, 0, 2, 0.89))
pocket6 = body.newObject("PartDesign::Pocket", "Pocket005")
pocket6.Profile = sketch10
pocket6.Type = "UpToFirst"
pocket6.Reversed = True

# Sketch on XZ plane
sketch11 = body.newObject("Sketcher::SketchObject", "Sketch010")
sketch11.AttachmentSupport = (doc.getObject("XZ_Plane"), [""])
sketch11.MapMode = "FlatFace"
sketch11.AttachmentOffset = App.Placement(Vector(0, 0, 0.26), App.Rotation())
add_polygon(sketch11, [(1.3, 0), (0.4, 0), (0.4, 2.1), (1.3, 2.1)])  # lines 0-3
add_polygon(sketch11, [(-1.2, 2.1), (-1.2, 0), (-2.1, 0), (-2.1, 2.1)])  # lines 4-7
sketch11.addConstraint(Sketcher.Constraint("Horizontal", 0))
sketch11.addConstraint(Sketcher.Constraint("Vertical", 1))
sketch11.addConstraint(Sketcher.Constraint("Horizontal", 2))
sketch11.addConstraint(Sketcher.Constraint("Vertical", 3))
sketch11.addConstraint(Sketcher.Constraint("Vertical", 4))
sketch11.addConstraint(Sketcher.Constraint("Horizontal", 5))
sketch11.addConstraint(Sketcher.Constraint("Vertical", 6))
sketch11.addConstraint(Sketcher.Constraint("Horizontal", 7))
sketch11.addConstraint(Sketcher.Constraint("PointOnObject", 0, 2, -1))
sketch11.addConstraint(Sketcher.Constraint("PointOnObject", 4, 2, -1))
sketch11.addConstraint(Sketcher.Constraint("Horizontal", 2, 2, 6, 2))
sketch11.addConstraint(Sketcher.Constraint("Equal", 2, 5))
sketch11.addConstraint(Sketcher.Constraint("DistanceY", 1, 1, 1, 2, 2.1))
sketch11.addConstraint(Sketcher.Constraint("DistanceX", 0, 2, 0, 1, 0.88))
sketch11.addConstraint(Sketcher.Constraint("DistanceX", -1, 1, 0, 2, 0.4))
sketch11.addConstraint(Sketcher.Constraint("DistanceX", 4, 2, -1, 1, 1.19))
pocket7 = body.newObject("PartDesign::Pocket", "Pocket006")
pocket7.Profile = sketch11
pocket7.Type = "UpToFirst"
pocket7.Reversed = True

# Sketch on XZ plane
sketch12 = body.newObject("Sketcher::SketchObject", "Sketch011")
sketch12.AttachmentSupport = (doc.getObject("XZ_Plane"), [""])
sketch12.MapMode = "FlatFace"
sketch12.AttachmentOffset = App.Placement(Vector(0, 0, -1.15), App.Rotation())
add_polygon(sketch12, [(0.1, 0), (0.8, 0), (0.8, 2), (0.1, 2)])  # lines 0-3
add_polygon(sketch12, [(-1.6, 2), (-1.6, 0), (-0.8, 0), (-0.8, 2)])  # lines 4-7
sketch12.addConstraint(Sketcher.Constraint("Horizontal", 0))
sketch12.addConstraint(Sketcher.Constraint("Vertical", 1))
sketch12.addConstraint(Sketcher.Constraint("Horizontal", 2))
sketch12.addConstraint(Sketcher.Constraint("Vertical", 3))
sketch12.addConstraint(Sketcher.Constraint("Vertical", 4))
sketch12.addConstraint(Sketcher.Constraint("Horizontal", 5))
sketch12.addConstraint(Sketcher.Constraint("Vertical", 6))
sketch12.addConstraint(Sketcher.Constraint("Horizontal", 7))
sketch12.addConstraint(Sketcher.Constraint("PointOnObject", 0, 2, -1))
sketch12.addConstraint(Sketcher.Constraint("PointOnObject", 4, 2, -1))
sketch12.addConstraint(Sketcher.Constraint("Horizontal", 2, 2, 6, 2))
sketch12.addConstraint(Sketcher.Constraint("Equal", 2, 5))
sketch12.addConstraint(Sketcher.Constraint("DistanceX", 0, 1, 0, 2, 0.78))
sketch12.addConstraint(Sketcher.Constraint("DistanceY", 1, 1, 1, 2, 2.03))
sketch12.addConstraint(Sketcher.Constraint("DistanceX", -1, 1, 0, 2, 0.846))
sketch12.addConstraint(Sketcher.Constraint("DistanceX", 4, 2, -1, 1, 1.582))
pocket8 = body.newObject("PartDesign::Pocket", "Pocket007")
pocket8.Profile = sketch12
pocket8.Type = "UpToFirst"

# Sketch on YZ plane
sketch13 = body.newObject("Sketcher::SketchObject", "Sketch012")
sketch13.AttachmentSupport = (doc.getObject("YZ_Plane"), [""])
sketch13.MapMode = "FlatFace"
sketch13.AttachmentOffset = App.Placement(Vector(0, 0, 1.59), App.Rotation())
add_polygon(sketch13, [(0.9, 0), (0, 0), (0, 2.1), (0.9, 2.1)])  # lines 0-3
sketch13.addConstraint(Sketcher.Constraint("Horizontal", 0))
sketch13.addConstraint(Sketcher.Constraint("Vertical", 1))
sketch13.addConstraint(Sketcher.Constraint("Horizontal", 2))
sketch13.addConstraint(Sketcher.Constraint("Vertical", 3))
sketch13.addConstraint(Sketcher.Constraint("Coincident", 0, 2, -1, 1))
sketch13.addConstraint(Sketcher.Constraint("DistanceY", 1, 1, 1, 2, 2.1))
sketch13.addConstraint(Sketcher.Constraint("DistanceX", 0, 2, 0, 1, 0.88))
pocket9 = body.newObject("PartDesign::Pocket", "Pocket008")
pocket9.Profile = sketch13
pocket9.Type = "UpToFirst"
pocket9.Reversed = True

# Sketch on YZ plane
sketch14 = body.newObject("Sketcher::SketchObject", "Sketch013")
sketch14.AttachmentSupport = (doc.getObject("YZ_Plane"), [""])
sketch14.MapMode = "FlatFace"
sketch14.AttachmentOffset = App.Placement(Vector(0, 0, -2.45), App.Rotation())
add_polygon(sketch14, [(0.9, 0), (0, 0), (0, 2.1), (0.9, 2.1)])  # lines 0-3
sketch14.addConstraint(Sketcher.Constraint("Horizontal", 0))
sketch14.addConstraint(Sketcher.Constraint("Vertical", 1))
sketch14.addConstraint(Sketcher.Constraint("Horizontal", 2))
sketch14.addConstraint(Sketcher.Constraint("Vertical", 3))
sketch14.addConstraint(Sketcher.Constraint("PointOnObject", 0, 2, -1))
sketch14.addConstraint(Sketcher.Constraint("DistanceY", 1, 1, 1, 2, 2.1))
sketch14.addConstraint(Sketcher.Constraint("DistanceX", 0, 2, 0, 1, 0.92))
sketch14.addConstraint(Sketcher.Constraint("DistanceX", -1, 1, 2, 2, 0.9))
pocket10 = body.newObject("PartDesign::Pocket", "Pocket009")
pocket10.Profile = sketch14
pocket10.Type = "UpToFirst"
pocket10.Reversed = True

# Sketch on XZ plane
sketch15 = body.newObject("Sketcher::SketchObject", "Sketch014")
sketch15.AttachmentSupport = (doc.getObject("XZ_Plane"), [""])
sketch15.MapMode = "FlatFace"
sketch15.AttachmentOffset = App.Placement(Vector(0, 0, -5.1), App.Rotation())
add_polygon(sketch15, [(-2.7, 0), (-3.4, 0), (-3.4, 0.8), (-2.7, 0.8)])  # lines 0-3
sketch15.addConstraint(Sketcher.Constraint("Horizontal", 0))
sketch15.addConstraint(Sketcher.Constraint("Vertical", 1))
sketch15.addConstraint(Sketcher.Constraint("Horizontal", 2))
sketch15.addConstraint(Sketcher.Constraint("Vertical", 3))
sketch15.addConstraint(Sketcher.Constraint("PointOnObject", 0, 2, -1))
sketch15.addConstraint(Sketcher.Constraint("DistanceX", 0, 2, 0, 1, 0.66))
sketch15.addConstraint(Sketcher.Constraint("DistanceY", 1, 1, 1, 2, 0.76))
sketch15.addConstraint(Sketcher.Constraint("DistanceX", 2, 2, -1, 1, 2.7))
pocket11 = body.newObject("PartDesign::Pocket", "Pocket010")
pocket11.Profile = sketch15
pocket11.Type = "UpToFirst"
pocket11.Reversed = True

# Sketch on XZ plane
sketch16 = body.newObject("Sketcher::SketchObject", "Sketch015")
sketch16.AttachmentSupport = (doc.getObject("XZ_Plane"), [""])
sketch16.MapMode = "FlatFace"
sketch16.AttachmentOffset = App.Placement(Vector(0, 0, -4.78), App.Rotation())
sketch16.addGeometry(Part.Circle(Vector(-0.42, 2.23, 0), Vector(0, 0, 1), 0.07), False)
sketch16.addConstraint(Sketcher.Constraint("Diameter", 0, 0.13))
sketch16.addConstraint(Sketcher.Constraint("DistanceX", 0, 3, -1, 1, 0.425))
sketch16.addConstraint(Sketcher.Constraint("DistanceY", -1, 1, 0, 3, 2.225))
pocket12 = body.newObject("PartDesign::Pocket", "Pocket011")
pocket12.Profile = sketch16
pocket12.Type = "ThroughAll"

doc.recompute()
